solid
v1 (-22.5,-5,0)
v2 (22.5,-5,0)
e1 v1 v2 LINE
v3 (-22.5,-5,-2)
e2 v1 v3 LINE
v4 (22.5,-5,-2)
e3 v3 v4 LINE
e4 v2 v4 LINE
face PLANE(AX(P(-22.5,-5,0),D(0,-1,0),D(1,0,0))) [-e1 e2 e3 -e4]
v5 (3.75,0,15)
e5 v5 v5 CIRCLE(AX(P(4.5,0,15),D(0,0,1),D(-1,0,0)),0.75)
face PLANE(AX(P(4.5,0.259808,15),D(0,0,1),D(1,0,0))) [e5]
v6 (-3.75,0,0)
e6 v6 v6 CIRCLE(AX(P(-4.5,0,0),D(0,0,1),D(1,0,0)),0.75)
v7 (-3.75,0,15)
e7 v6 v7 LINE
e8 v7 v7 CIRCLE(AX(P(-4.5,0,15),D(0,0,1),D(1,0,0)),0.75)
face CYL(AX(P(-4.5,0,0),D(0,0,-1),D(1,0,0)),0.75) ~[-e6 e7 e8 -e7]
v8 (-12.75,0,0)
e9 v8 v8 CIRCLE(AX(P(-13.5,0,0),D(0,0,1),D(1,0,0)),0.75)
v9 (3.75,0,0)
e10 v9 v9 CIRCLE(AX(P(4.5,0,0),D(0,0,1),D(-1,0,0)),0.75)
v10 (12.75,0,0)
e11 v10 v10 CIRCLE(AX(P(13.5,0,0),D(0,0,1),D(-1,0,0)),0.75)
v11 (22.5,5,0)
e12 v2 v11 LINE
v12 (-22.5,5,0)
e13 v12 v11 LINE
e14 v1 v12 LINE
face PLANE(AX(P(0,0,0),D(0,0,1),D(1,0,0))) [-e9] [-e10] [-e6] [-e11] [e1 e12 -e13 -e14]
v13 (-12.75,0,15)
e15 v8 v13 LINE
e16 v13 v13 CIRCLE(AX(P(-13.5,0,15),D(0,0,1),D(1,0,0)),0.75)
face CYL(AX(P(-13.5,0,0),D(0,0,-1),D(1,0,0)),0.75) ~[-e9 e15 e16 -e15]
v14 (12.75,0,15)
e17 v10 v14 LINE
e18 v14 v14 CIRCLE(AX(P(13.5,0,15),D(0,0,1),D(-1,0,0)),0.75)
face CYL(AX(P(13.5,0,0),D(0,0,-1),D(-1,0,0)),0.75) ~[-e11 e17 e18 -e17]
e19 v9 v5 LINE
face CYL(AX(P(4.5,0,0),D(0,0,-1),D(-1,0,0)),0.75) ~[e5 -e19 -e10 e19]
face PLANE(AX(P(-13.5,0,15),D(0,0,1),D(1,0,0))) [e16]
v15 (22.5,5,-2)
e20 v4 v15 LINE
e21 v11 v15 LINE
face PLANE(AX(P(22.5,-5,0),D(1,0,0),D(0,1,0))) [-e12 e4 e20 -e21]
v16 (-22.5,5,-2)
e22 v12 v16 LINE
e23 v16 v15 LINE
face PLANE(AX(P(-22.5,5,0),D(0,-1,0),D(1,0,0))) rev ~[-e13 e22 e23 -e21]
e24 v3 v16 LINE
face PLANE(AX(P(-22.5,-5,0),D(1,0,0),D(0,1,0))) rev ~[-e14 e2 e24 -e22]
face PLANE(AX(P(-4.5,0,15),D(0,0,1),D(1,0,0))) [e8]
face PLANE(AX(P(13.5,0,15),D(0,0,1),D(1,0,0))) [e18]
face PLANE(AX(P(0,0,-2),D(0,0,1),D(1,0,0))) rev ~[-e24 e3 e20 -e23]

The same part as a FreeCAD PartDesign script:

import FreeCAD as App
import Part
import Sketcher
from FreeCAD import Vector
Q = App.Units.Quantity


def add_polygon(sketch, points):
    """Adds a closed chain of lines whose ends are joined by coincident constraints."""
    first, n = sketch.GeometryCount, len(points)
    for a, b in zip(points, points[1:] + points[:1]):
        sketch.addGeometry(Part.LineSegment(App.Vector(*a, 0), App.Vector(*b, 0)), False)
    for i in range(n):
        sketch.addConstraint(Sketcher.Constraint("Coincident", first + i, 2, first + (i + 1) % n, 1))

doc = App.newDocument("Part")
body = doc.addObject("PartDesign::Body", "Body")

# Sketch on XY plane
sketch1 = body.newObject("Sketcher::SketchObject", "Sketch")
sketch1.AttachmentSupport = (doc.getObject("XY_Plane"), [""])
sketch1.MapMode = "FlatFace"
add_polygon(sketch1, [(-22, 5), (-22, -5), (22, -5), (22, 5)])  # lines 0-3
sketch1.addConstraint(Sketcher.Constraint("Vertical", 0))
sketch1.addConstraint(Sketcher.Constraint("Horizontal", 1))
sketch1.addConstraint(Sketcher.Constraint("Vertical", 2))
sketch1.addConstraint(Sketcher.Constraint("Horizontal", 3))
sketch1.addConstraint(Sketcher.Constraint("Symmetric", 0, 2, 2, 2, -1, 1))
sketch1.addConstraint(Sketcher.Constraint("DistanceX", 1, 1, 1, 2, Q("45 mm")))
sketch1.addConstraint(Sketcher.Constraint("DistanceY", 0, 2, 0, 1, Q("10 mm")))
pad1 = body.newObject("PartDesign::Pad", "Pad")
pad1.Profile = sketch1
pad1.Length = 2
pad1.Reversed = True

# Sketch on XY plane
sketch2 = body.newObject("Sketcher::SketchObject", "Sketch001")
sketch2.AttachmentSupport = (doc.getObject("XY_Plane"), [""])
sketch2.MapMode = "FlatFace"
sketch2.addGeometry(Part.Circle(Vector(-13.5, 0, 0), Vector(0, 0, 1), 0.8), False)
sketch2.addGeometry(Part.Circle(Vector(-4.5, 0, 0), Vector(0, 0, 1), 0.8), False)
sketch2.addGeometry(Part.Circle(Vector(4.5, 0, 0), Vector(0, 0, 1), 0.8), False)
sketch2.addGeometry(Part.Circle(Vector(13.5, 0, 0), Vector(0, 0, 1), 0.8), False)
sketch2.addConstraint(Sketcher.Constraint("Equal", 0, 1))
sketch2.addConstraint(Sketcher.Constraint("Equal", 1, 2))
sketch2.addConstraint(Sketcher.Constraint("Equal", 2, 3))
sketch2.addConstraint(Sketcher.Constraint("Symmetric", 1, 3, 2, 3, -1, 1))
sketch2.addConstraint(Sketcher.Constraint("Symmetric", 0, 3, 3, 3, -1, 1))
sketch2.addConstraint(Sketcher.Constraint("PointOnObject", 0, 3, -1))
sketch2.addConstraint(Sketcher.Constraint("PointOnObject", 1, 3, -1))
sketch2.addConstraint(Sketcher.Constraint("Diameter", 0, Q("1.5 mm")))
sketch2.addConstraint(Sketcher.Constraint("DistanceX", 0, 3, 1, 3, Q("9 mm")))
sketch2.addConstraint(Sketcher.Constraint("DistanceX", 1, 3, 2, 3, Q("9 mm")))
pad2 = body.newObject("PartDesign::Pad", "Pad001")
pad2.Profile = sketch2
pad2.Length = 15

doc.recompute()
